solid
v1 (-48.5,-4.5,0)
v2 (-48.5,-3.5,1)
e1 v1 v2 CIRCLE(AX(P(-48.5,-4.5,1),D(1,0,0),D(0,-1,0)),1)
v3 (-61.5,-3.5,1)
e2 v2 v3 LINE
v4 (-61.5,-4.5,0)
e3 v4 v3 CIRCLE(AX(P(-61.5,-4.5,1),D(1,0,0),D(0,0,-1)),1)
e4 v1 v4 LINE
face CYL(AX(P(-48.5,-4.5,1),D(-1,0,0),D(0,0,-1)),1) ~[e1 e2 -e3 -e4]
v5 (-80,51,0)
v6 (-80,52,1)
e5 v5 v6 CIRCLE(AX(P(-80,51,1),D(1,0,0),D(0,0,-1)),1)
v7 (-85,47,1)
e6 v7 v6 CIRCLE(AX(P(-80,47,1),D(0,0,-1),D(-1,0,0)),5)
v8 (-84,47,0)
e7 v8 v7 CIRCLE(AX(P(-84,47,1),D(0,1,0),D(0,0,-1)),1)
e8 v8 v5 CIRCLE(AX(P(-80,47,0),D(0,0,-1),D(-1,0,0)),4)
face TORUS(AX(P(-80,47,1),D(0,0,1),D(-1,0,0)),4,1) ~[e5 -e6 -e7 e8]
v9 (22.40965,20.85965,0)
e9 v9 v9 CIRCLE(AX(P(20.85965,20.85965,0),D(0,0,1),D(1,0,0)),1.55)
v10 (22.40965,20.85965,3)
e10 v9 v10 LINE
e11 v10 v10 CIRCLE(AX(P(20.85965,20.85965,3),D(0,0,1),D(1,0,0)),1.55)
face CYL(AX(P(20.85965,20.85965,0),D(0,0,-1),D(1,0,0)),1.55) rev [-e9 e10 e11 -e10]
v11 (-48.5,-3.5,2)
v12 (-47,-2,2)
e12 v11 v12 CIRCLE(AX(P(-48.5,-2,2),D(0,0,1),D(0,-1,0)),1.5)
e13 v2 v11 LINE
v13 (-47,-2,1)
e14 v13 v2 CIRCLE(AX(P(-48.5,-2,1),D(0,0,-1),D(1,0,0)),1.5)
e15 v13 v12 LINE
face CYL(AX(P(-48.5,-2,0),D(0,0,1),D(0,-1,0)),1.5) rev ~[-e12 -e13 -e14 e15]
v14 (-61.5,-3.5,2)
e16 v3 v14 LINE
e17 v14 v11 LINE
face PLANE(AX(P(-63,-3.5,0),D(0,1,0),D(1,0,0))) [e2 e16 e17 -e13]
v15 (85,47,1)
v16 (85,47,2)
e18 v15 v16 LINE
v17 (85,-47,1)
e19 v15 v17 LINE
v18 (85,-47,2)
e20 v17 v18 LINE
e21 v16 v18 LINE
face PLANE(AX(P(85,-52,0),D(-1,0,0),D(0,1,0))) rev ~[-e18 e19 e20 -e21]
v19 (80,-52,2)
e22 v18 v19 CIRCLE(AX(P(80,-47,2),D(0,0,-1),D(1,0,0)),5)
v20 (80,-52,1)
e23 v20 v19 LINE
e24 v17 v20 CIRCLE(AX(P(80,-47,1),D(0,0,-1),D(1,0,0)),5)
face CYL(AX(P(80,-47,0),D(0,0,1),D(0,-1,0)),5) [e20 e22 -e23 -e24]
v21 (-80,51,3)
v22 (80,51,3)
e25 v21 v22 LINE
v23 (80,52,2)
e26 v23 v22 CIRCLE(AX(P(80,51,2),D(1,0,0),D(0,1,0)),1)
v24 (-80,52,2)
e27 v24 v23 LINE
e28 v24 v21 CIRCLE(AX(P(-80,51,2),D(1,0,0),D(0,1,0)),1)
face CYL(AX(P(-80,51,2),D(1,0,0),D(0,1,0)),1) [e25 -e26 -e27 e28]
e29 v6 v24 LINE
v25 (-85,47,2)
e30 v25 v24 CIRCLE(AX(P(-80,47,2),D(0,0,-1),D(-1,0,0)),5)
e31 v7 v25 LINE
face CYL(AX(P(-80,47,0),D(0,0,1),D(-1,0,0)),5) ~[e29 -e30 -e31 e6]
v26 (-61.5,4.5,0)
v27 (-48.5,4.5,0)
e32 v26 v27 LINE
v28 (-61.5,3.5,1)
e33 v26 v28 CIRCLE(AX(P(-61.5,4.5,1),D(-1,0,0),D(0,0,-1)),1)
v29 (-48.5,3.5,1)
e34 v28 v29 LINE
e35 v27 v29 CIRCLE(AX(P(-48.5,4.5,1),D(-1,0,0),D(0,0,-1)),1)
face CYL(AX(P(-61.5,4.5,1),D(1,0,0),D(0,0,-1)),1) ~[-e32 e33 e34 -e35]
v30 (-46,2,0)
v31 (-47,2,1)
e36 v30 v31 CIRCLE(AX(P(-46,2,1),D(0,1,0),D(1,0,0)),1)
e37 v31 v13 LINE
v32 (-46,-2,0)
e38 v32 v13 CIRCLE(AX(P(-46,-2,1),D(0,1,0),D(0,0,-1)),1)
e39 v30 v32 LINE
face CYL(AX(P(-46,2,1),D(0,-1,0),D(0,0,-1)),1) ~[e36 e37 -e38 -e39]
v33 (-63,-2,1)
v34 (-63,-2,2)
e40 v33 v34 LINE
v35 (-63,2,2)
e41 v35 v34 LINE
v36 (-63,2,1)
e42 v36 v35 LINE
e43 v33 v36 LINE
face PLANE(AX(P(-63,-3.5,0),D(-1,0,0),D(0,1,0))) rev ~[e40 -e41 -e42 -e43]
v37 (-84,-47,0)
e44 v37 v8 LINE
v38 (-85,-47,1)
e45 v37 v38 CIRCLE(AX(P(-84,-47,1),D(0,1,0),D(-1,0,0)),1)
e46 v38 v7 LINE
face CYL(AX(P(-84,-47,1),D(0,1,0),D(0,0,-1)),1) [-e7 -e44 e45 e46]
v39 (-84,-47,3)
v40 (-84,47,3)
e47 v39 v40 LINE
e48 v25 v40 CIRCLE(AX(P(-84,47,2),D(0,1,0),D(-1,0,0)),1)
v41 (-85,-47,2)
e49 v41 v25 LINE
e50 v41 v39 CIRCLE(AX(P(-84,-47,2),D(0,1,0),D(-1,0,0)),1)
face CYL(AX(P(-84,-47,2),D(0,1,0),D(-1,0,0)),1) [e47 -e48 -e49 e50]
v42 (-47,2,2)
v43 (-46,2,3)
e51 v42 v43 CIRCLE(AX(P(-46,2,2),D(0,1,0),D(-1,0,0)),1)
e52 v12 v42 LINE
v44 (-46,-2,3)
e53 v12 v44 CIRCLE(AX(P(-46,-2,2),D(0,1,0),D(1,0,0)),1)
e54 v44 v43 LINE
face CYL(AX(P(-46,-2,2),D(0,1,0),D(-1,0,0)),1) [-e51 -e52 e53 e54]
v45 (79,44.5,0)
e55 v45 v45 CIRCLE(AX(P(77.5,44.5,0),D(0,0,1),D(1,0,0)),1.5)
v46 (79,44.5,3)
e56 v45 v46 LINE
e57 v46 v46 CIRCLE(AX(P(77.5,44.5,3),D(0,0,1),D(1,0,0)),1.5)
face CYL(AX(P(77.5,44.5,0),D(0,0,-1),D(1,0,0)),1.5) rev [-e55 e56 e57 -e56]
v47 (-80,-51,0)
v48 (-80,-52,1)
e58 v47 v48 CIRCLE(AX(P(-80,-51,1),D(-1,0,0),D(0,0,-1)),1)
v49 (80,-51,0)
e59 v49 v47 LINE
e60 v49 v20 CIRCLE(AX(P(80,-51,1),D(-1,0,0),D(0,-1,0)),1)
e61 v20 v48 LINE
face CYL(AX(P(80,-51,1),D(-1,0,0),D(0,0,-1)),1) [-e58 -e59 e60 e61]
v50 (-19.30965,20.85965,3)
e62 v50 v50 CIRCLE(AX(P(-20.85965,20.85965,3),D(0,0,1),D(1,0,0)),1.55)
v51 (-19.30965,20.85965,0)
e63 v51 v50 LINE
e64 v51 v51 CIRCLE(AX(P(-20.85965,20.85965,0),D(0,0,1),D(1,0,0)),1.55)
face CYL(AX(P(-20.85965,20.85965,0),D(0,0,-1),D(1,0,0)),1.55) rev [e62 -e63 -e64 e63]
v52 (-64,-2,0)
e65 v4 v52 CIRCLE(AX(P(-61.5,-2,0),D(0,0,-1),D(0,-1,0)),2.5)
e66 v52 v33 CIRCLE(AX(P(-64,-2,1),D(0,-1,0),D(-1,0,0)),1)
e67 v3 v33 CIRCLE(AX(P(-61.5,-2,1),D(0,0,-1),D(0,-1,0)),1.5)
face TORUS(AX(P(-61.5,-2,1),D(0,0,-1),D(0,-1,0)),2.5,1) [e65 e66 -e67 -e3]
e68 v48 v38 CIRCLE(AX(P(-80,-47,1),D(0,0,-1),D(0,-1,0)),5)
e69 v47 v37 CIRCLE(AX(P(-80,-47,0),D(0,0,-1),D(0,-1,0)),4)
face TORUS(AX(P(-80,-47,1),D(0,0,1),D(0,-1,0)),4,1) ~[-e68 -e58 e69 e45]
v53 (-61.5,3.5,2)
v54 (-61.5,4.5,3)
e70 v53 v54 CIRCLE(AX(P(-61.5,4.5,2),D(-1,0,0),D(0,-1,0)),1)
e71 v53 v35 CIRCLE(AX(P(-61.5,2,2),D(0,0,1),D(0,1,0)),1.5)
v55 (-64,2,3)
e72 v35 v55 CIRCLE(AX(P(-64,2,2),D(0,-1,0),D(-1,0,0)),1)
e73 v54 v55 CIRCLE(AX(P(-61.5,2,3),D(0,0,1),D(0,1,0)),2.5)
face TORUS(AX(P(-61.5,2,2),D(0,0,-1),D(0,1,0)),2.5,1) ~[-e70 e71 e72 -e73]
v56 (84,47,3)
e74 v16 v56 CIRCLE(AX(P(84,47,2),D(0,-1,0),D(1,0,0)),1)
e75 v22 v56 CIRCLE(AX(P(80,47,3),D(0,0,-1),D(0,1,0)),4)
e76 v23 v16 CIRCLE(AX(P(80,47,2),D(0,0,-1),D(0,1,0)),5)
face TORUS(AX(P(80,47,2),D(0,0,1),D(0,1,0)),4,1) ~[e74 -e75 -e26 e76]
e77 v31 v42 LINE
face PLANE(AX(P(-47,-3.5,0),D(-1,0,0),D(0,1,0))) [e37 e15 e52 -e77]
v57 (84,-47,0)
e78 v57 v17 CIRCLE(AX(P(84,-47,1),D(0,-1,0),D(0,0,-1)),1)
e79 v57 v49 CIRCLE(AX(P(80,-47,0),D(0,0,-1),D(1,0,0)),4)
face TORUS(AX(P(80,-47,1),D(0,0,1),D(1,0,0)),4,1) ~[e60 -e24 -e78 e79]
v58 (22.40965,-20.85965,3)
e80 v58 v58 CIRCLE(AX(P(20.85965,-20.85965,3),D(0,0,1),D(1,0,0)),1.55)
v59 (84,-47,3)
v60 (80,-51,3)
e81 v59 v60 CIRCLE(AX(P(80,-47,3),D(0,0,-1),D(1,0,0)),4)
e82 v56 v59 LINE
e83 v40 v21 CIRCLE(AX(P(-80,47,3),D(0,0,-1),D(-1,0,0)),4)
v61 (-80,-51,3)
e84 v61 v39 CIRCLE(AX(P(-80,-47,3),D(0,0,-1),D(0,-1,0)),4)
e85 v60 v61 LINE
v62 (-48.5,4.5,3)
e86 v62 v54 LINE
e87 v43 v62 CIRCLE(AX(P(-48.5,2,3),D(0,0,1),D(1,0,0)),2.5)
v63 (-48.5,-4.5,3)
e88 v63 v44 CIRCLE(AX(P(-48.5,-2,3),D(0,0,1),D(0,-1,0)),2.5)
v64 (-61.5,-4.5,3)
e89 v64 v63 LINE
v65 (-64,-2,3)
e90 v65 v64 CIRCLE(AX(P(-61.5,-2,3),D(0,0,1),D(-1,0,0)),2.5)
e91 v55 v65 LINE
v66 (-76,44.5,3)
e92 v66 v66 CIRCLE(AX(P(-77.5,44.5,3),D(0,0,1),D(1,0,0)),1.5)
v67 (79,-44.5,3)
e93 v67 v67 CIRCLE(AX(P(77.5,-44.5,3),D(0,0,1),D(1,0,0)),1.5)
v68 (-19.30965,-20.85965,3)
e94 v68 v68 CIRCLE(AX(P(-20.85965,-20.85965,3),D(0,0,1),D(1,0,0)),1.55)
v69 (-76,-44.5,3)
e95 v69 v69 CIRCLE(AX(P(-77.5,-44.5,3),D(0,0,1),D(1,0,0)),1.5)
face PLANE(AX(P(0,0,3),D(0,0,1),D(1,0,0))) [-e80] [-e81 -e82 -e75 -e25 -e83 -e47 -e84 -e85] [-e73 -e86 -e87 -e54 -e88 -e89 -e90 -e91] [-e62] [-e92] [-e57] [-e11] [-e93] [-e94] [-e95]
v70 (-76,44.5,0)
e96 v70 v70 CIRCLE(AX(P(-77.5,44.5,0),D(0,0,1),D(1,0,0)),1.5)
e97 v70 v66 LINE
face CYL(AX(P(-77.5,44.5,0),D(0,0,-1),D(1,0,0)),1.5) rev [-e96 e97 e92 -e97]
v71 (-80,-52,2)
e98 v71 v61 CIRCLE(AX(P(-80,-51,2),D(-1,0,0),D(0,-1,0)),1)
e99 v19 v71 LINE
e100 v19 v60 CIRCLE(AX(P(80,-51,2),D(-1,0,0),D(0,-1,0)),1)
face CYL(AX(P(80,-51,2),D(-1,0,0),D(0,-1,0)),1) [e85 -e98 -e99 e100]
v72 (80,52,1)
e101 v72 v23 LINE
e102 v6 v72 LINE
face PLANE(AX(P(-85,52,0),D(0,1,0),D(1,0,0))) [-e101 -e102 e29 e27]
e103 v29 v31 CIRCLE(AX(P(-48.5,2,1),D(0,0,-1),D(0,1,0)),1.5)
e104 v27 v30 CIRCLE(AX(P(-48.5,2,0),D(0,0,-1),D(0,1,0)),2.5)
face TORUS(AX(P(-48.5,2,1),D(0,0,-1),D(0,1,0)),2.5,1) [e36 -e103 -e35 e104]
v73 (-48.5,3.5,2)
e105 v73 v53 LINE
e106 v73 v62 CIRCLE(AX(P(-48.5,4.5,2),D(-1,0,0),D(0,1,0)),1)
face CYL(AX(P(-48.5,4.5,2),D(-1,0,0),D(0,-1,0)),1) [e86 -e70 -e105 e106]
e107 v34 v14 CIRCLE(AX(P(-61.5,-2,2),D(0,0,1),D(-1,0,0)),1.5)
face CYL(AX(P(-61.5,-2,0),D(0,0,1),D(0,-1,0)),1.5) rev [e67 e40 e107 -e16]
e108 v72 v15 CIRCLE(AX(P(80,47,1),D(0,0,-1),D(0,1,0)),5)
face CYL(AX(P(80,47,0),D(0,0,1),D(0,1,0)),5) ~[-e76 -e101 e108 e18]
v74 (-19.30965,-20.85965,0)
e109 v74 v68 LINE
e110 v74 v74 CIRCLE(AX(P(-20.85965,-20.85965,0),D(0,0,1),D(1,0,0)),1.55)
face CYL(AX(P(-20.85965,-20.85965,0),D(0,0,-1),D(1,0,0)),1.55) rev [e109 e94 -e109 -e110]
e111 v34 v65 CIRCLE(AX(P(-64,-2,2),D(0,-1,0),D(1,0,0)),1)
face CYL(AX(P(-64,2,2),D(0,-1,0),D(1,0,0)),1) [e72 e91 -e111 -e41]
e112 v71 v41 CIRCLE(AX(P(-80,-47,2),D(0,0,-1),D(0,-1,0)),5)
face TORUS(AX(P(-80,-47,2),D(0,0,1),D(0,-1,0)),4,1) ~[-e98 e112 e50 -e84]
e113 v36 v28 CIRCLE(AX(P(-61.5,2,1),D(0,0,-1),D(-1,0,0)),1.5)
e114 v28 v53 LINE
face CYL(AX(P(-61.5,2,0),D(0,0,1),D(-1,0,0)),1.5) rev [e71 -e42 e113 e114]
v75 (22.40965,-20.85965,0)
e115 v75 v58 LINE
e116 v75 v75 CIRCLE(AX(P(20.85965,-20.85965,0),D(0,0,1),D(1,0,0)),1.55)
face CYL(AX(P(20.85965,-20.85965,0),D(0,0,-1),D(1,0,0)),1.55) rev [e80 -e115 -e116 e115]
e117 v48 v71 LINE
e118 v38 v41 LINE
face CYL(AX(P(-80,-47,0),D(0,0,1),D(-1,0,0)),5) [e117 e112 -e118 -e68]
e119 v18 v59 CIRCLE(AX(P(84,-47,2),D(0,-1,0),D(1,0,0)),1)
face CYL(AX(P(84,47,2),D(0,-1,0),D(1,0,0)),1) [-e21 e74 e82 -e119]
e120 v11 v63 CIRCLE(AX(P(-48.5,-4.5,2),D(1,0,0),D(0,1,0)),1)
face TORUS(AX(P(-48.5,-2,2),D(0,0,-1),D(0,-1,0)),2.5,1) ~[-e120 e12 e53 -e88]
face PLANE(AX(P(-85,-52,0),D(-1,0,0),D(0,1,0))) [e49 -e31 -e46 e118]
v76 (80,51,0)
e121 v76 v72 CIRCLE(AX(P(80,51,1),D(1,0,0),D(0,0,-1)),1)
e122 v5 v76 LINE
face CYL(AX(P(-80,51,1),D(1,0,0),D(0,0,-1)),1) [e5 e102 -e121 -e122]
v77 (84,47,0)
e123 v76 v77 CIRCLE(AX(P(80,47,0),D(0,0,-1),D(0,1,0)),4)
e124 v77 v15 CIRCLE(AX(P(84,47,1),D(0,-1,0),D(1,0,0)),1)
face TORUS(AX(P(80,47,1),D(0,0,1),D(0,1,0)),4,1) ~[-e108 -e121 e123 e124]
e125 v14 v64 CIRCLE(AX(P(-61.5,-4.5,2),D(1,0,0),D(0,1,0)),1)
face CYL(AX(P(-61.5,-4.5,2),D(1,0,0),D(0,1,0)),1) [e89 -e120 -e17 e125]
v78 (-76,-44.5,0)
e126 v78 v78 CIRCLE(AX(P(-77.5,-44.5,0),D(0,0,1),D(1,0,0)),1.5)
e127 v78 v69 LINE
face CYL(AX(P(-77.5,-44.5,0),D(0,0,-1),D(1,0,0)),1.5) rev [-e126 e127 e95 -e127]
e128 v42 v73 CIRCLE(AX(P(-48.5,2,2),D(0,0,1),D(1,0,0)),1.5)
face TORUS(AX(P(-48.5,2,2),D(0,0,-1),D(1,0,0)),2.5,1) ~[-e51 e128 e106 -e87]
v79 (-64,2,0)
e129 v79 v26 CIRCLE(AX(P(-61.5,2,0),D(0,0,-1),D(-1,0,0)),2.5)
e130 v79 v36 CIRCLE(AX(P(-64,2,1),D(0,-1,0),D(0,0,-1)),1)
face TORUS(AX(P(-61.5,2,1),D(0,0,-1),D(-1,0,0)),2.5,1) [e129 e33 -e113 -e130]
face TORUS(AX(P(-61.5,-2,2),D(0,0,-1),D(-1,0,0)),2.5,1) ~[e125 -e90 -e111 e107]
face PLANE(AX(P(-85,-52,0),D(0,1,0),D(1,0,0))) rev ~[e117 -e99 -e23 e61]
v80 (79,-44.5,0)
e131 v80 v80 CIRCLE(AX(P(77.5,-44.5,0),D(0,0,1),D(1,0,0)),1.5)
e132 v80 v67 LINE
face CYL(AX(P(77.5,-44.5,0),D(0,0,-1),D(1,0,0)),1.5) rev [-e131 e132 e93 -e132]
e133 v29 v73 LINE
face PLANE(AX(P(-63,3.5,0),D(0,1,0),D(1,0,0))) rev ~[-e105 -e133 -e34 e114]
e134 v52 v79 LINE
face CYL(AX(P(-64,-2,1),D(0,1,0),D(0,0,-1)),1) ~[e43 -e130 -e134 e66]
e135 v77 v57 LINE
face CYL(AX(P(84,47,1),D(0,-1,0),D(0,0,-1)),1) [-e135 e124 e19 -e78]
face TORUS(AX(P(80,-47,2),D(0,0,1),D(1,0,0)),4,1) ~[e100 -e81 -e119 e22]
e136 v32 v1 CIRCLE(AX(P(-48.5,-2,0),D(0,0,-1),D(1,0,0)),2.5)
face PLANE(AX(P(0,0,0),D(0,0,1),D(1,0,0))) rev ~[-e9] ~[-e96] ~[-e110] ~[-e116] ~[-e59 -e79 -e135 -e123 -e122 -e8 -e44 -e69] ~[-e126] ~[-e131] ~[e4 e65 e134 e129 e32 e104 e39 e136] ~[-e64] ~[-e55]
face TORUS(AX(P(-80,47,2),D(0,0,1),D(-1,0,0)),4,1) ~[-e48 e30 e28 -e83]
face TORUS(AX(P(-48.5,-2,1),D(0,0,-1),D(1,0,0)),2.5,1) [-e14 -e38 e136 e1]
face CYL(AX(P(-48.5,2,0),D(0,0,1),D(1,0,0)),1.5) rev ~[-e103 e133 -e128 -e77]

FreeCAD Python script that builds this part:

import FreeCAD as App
import Part
import Sketcher
from FreeCAD import Vector
Q = App.Units.Quantity


def edges_at(feature, points):
    """Names of the edges that pass closest to the given points."""
    edges = feature.Shape.Edges
    near = lambda p: min(range(len(edges)), key=lambda i: edges[i].distToShape(Part.Vertex(*p))[0])
    return sorted({f"Edge{near(p) + 1}" for p in points})


def add_polygon(sketch, points):
    """Adds a closed chain of lines whose ends are joined by coincident constraints."""
    first, n = sketch.GeometryCount, len(points)
    for a, b in zip(points, points[1:] + points[:1]):
        sketch.addGeometry(Part.LineSegment(App.Vector(*a, 0), App.Vector(*b, 0)), False)
    for i in range(n):
        sketch.addConstraint(Sketcher.Constraint("Coincident", first + i, 2, first + (i + 1) % n, 1))

doc = App.newDocument("Part")
body = doc.addObject("PartDesign::Body", "Body")

# Sketch on XY plane
sketch1 = body.newObject("Sketcher::SketchObject", "Sketch")
sketch1.AttachmentSupport = (doc.getObject("XY_Plane"), [""])
sketch1.MapMode = "FlatFace"
add_polygon(sketch1, [(-85, 52), (-85, -52), (85, -52), (85, 52)])  # lines 0-3
sketch1.addGeometry(Part.Circle(Vector(-77.5, -44.5, 0), Vector(0, 0, 1), 1.5), False)  # 4
sketch1.addGeometry(Part.Circle(Vector(-20.9, -20.9, 0), Vector(0, 0, 1), 1.6), False)  # 5
sketch1.addGeometry(Part.Circle(Vector(77.5, -44.5, 0), Vector(0, 0, 1), 1.5), False)  # 6
sketch1.addGeometry(Part.Circle(Vector(20.9, -20.9, 0), Vector(0, 0, 1), 1.6), False)  # 7
add_polygon(sketch1, [(-47, -3.5), (-63, -3.5), (-63, 3.5), (-47, 3.5)])  # lines 8-11
sketch1.addGeometry(Part.Circle(Vector(-20.9, 20.9, 0), Vector(0, 0, 1), 1.6), False)  # 12
sketch1.addGeometry(Part.Circle(Vector(-77.5, 44.5, 0), Vector(0, 0, 1), 1.5), False)  # 13
sketch1.addGeometry(Part.Circle(Vector(20.9, 20.9, 0), Vector(0, 0, 1), 1.6), False)  # 14
sketch1.addGeometry(Part.Circle(Vector(77.5, 44.5, 0), Vector(0, 0, 1), 1.5), False)  # 15
sketch1.addConstraint(Sketcher.Constraint("Vertical", 0))
sketch1.addConstraint(Sketcher.Constraint("Horizontal", 1))
sketch1.addConstraint(Sketcher.Constraint("Vertical", 2))
sketch1.addConstraint(Sketcher.Constraint("Horizontal", 3))
sketch1.addConstraint(Sketcher.Constraint("Horizontal", 8))
sketch1.addConstraint(Sketcher.Constraint("Vertical", 9))
sketch1.addConstraint(Sketcher.Constraint("Horizontal", 10))
sketch1.addConstraint(Sketcher.Constraint("Vertical", 11))
sketch1.addConstraint(Sketcher.Constraint("Equal", 4, 6))
sketch1.addConstraint(Sketcher.Constraint("Equal", 5, 7))
sketch1.addConstraint(Sketcher.Constraint("Equal", 7, 12))
sketch1.addConstraint(Sketcher.Constraint("Equal", 6, 13))
sketch1.addConstraint(Sketcher.Constraint("Equal", 12, 14))
sketch1.addConstraint(Sketcher.Constraint("Equal", 13, 15))
sketch1.addConstraint(Sketcher.Constraint("Symmetric", 7, 3, 12, 3, -1, 1))
sketch1.addConstraint(Sketcher.Constraint("Symmetric", 6, 3, 13, 3, -1, 1))
sketch1.addConstraint(Sketcher.Constraint("Symmetric", 5, 3, 14, 3, -1, 1))
sketch1.addConstraint(Sketcher.Constraint("Symmetric", 4, 3, 15, 3, -1, 1))
sketch1.addConstraint(Sketcher.Constraint("Symmetric", 0, 2, 2, 2, -1, 1))
sketch1.addConstraint(Sketcher.Constraint("Symmetric", 4, 3, 6, 3, -2))
sketch1.addConstraint(Sketcher.Constraint("Symmetric", 5, 3, 7, 3, -2))
sketch1.addConstraint(Sketcher.Constraint("Diameter", 4, Q("3 mm")))
sketch1.addConstraint(Sketcher.Constraint("Diameter", 5, Q("3.1 mm")))
sketch1.addConstraint(Sketcher.Constraint("DistanceX", 1, 1, 1, 2, Q("170 mm")))
sketch1.addConstraint(Sketcher.Constraint("DistanceX", 8, 2, 8, 1, Q("16 mm")))
sketch1.addConstraint(Sketcher.Constraint("DistanceY", 0, 2, 0, 1, Q("104 mm")))
sketch1.addConstraint(Sketcher.Constraint("DistanceY", 9, 1, 9, 2, Q("7 mm")))
sketch1.addConstraint(Sketcher.Constraint("DistanceX", 8, 2, -1, 1, Q("63 mm")))
sketch1.addConstraint(Sketcher.Constraint("DistanceX", 4, 3, 6, 3, Q("155 mm")))
sketch1.addConstraint(Sketcher.Constraint("DistanceY", 4, 3, 13, 3, Q("89 mm")))
sketch1.addConstraint(Sketcher.Constraint("DistanceY", 4, 3, 8, 2, Q("41 mm")))
sketch1.addConstraint(Sketcher.Constraint("DistanceX", 5, 3, 7, 3, Q("41.7193 mm")))
sketch1.addConstraint(Sketcher.Constraint("DistanceY", 5, 3, 12, 3, Q("41.7193 mm")))
pad1 = body.newObject("PartDesign::Pad", "Pad")
pad1.Profile = sketch1
pad1.Length = 3
doc.recompute()

fillet = body.newObject("PartDesign::Fillet", "Fillet")
fillet.Base = (pad1, edges_at(pad1, [
    (-85, -52, 1.5),
    (-85, 52, 1.5),
    (85, 52, 1.5),
    (85, -52, 1.5),
]))
fillet.Radius = 5
doc.recompute()

fillet2 = body.newObject("PartDesign::Fillet", "Fillet001")
fillet2.Base = (fillet, edges_at(fillet, [
    (-47, 3.5, 1.5),
    (-47, -3.5, 1.5),
    (-63, -3.5, 1.5),
    (-63, 3.5, 1.5),
]))
fillet2.Radius = 1.5
doc.recompute()

fillet3 = body.newObject("PartDesign::Fillet", "Fillet002")
fillet3.Base = (fillet2, edges_at(fillet2, [
    (0, 52, 3),
    (0, 52, 0),
    (-55, -3.5, 3),
    (-55, 3.5, 0),
]))
fillet3.Radius = 1

doc.recompute()
